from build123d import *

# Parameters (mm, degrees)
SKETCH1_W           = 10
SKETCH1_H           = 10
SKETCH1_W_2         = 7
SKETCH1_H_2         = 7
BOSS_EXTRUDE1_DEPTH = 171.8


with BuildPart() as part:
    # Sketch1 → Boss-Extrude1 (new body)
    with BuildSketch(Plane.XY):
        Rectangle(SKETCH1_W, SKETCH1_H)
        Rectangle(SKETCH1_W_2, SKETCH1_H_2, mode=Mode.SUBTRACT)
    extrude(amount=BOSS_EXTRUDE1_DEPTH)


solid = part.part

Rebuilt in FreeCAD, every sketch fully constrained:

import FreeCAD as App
import Part
import Sketcher

V = App.Vector


def add_polygon(sketch, points):
    """Adds a closed chain of lines whose ends are joined by coincident constraints."""
    first, n = sketch.GeometryCount, len(points)
    for a, b in zip(points, points[1:] + points[:1]):
        sketch.addGeometry(Part.LineSegment(App.Vector(*a, 0), App.Vector(*b, 0)), False)
    for i in range(n):
        sketch.addConstraint(Sketcher.Constraint("Coincident", first + i, 2, first + (i + 1) % n, 1))

doc = App.newDocument("Part")
body = doc.addObject("PartDesign::Body", "Body")

# Sketch on XY plane
sketch1 = body.newObject("Sketcher::SketchObject", "Sketch")
sketch1.AttachmentSupport = (doc.getObject("XY_Plane"), [""])
sketch1.MapMode = "FlatFace"
add_polygon(sketch1, [(-5, 5), (-5, -5), (5, -5), (5, 5)])  # lines 0-3
add_polygon(sketch1, [(4, -4), (-4, -4), (-4, 4), (4, 4)])  # lines 4-7
sketch1.addConstraint(Sketcher.Constraint("Vertical", 0))
sketch1.addConstraint(Sketcher.Constraint("Horizontal", 1))
sketch1.addConstraint(Sketcher.Constraint("Vertical", 2))
sketch1.addConstraint(Sketcher.Constraint("Horizontal", 3))
sketch1.addConstraint(Sketcher.Constraint("Horizontal", 4))
sketch1.addConstraint(Sketcher.Constraint("Vertical", 5))
sketch1.addConstraint(Sketcher.Constraint("Horizontal", 6))
sketch1.addConstraint(Sketcher.Constraint("Vertical", 7))
sketch1.addConstraint(Sketcher.Constraint("Symmetric", 0, 2, 2, 2, -1, 1))
sketch1.addConstraint(Sketcher.Constraint("Symmetric", 4, 2, 6, 2, -1, 1))
sketch1.addConstraint(Sketcher.Constraint("Equal", 3, 0))
sketch1.addConstraint(Sketcher.Constraint("Equal", 6, 5))
sketch1.addConstraint(Sketcher.Constraint("DistanceX", 1, 1, 1, 2, 10.0))
sketch1.addConstraint(Sketcher.Constraint("DistanceX", 4, 2, 4, 1, 7.0))
pad1 = body.newObject("PartDesign::Pad", "Pad")
pad1.Profile = sketch1
pad1.Length = 171.8

doc.recompute()
